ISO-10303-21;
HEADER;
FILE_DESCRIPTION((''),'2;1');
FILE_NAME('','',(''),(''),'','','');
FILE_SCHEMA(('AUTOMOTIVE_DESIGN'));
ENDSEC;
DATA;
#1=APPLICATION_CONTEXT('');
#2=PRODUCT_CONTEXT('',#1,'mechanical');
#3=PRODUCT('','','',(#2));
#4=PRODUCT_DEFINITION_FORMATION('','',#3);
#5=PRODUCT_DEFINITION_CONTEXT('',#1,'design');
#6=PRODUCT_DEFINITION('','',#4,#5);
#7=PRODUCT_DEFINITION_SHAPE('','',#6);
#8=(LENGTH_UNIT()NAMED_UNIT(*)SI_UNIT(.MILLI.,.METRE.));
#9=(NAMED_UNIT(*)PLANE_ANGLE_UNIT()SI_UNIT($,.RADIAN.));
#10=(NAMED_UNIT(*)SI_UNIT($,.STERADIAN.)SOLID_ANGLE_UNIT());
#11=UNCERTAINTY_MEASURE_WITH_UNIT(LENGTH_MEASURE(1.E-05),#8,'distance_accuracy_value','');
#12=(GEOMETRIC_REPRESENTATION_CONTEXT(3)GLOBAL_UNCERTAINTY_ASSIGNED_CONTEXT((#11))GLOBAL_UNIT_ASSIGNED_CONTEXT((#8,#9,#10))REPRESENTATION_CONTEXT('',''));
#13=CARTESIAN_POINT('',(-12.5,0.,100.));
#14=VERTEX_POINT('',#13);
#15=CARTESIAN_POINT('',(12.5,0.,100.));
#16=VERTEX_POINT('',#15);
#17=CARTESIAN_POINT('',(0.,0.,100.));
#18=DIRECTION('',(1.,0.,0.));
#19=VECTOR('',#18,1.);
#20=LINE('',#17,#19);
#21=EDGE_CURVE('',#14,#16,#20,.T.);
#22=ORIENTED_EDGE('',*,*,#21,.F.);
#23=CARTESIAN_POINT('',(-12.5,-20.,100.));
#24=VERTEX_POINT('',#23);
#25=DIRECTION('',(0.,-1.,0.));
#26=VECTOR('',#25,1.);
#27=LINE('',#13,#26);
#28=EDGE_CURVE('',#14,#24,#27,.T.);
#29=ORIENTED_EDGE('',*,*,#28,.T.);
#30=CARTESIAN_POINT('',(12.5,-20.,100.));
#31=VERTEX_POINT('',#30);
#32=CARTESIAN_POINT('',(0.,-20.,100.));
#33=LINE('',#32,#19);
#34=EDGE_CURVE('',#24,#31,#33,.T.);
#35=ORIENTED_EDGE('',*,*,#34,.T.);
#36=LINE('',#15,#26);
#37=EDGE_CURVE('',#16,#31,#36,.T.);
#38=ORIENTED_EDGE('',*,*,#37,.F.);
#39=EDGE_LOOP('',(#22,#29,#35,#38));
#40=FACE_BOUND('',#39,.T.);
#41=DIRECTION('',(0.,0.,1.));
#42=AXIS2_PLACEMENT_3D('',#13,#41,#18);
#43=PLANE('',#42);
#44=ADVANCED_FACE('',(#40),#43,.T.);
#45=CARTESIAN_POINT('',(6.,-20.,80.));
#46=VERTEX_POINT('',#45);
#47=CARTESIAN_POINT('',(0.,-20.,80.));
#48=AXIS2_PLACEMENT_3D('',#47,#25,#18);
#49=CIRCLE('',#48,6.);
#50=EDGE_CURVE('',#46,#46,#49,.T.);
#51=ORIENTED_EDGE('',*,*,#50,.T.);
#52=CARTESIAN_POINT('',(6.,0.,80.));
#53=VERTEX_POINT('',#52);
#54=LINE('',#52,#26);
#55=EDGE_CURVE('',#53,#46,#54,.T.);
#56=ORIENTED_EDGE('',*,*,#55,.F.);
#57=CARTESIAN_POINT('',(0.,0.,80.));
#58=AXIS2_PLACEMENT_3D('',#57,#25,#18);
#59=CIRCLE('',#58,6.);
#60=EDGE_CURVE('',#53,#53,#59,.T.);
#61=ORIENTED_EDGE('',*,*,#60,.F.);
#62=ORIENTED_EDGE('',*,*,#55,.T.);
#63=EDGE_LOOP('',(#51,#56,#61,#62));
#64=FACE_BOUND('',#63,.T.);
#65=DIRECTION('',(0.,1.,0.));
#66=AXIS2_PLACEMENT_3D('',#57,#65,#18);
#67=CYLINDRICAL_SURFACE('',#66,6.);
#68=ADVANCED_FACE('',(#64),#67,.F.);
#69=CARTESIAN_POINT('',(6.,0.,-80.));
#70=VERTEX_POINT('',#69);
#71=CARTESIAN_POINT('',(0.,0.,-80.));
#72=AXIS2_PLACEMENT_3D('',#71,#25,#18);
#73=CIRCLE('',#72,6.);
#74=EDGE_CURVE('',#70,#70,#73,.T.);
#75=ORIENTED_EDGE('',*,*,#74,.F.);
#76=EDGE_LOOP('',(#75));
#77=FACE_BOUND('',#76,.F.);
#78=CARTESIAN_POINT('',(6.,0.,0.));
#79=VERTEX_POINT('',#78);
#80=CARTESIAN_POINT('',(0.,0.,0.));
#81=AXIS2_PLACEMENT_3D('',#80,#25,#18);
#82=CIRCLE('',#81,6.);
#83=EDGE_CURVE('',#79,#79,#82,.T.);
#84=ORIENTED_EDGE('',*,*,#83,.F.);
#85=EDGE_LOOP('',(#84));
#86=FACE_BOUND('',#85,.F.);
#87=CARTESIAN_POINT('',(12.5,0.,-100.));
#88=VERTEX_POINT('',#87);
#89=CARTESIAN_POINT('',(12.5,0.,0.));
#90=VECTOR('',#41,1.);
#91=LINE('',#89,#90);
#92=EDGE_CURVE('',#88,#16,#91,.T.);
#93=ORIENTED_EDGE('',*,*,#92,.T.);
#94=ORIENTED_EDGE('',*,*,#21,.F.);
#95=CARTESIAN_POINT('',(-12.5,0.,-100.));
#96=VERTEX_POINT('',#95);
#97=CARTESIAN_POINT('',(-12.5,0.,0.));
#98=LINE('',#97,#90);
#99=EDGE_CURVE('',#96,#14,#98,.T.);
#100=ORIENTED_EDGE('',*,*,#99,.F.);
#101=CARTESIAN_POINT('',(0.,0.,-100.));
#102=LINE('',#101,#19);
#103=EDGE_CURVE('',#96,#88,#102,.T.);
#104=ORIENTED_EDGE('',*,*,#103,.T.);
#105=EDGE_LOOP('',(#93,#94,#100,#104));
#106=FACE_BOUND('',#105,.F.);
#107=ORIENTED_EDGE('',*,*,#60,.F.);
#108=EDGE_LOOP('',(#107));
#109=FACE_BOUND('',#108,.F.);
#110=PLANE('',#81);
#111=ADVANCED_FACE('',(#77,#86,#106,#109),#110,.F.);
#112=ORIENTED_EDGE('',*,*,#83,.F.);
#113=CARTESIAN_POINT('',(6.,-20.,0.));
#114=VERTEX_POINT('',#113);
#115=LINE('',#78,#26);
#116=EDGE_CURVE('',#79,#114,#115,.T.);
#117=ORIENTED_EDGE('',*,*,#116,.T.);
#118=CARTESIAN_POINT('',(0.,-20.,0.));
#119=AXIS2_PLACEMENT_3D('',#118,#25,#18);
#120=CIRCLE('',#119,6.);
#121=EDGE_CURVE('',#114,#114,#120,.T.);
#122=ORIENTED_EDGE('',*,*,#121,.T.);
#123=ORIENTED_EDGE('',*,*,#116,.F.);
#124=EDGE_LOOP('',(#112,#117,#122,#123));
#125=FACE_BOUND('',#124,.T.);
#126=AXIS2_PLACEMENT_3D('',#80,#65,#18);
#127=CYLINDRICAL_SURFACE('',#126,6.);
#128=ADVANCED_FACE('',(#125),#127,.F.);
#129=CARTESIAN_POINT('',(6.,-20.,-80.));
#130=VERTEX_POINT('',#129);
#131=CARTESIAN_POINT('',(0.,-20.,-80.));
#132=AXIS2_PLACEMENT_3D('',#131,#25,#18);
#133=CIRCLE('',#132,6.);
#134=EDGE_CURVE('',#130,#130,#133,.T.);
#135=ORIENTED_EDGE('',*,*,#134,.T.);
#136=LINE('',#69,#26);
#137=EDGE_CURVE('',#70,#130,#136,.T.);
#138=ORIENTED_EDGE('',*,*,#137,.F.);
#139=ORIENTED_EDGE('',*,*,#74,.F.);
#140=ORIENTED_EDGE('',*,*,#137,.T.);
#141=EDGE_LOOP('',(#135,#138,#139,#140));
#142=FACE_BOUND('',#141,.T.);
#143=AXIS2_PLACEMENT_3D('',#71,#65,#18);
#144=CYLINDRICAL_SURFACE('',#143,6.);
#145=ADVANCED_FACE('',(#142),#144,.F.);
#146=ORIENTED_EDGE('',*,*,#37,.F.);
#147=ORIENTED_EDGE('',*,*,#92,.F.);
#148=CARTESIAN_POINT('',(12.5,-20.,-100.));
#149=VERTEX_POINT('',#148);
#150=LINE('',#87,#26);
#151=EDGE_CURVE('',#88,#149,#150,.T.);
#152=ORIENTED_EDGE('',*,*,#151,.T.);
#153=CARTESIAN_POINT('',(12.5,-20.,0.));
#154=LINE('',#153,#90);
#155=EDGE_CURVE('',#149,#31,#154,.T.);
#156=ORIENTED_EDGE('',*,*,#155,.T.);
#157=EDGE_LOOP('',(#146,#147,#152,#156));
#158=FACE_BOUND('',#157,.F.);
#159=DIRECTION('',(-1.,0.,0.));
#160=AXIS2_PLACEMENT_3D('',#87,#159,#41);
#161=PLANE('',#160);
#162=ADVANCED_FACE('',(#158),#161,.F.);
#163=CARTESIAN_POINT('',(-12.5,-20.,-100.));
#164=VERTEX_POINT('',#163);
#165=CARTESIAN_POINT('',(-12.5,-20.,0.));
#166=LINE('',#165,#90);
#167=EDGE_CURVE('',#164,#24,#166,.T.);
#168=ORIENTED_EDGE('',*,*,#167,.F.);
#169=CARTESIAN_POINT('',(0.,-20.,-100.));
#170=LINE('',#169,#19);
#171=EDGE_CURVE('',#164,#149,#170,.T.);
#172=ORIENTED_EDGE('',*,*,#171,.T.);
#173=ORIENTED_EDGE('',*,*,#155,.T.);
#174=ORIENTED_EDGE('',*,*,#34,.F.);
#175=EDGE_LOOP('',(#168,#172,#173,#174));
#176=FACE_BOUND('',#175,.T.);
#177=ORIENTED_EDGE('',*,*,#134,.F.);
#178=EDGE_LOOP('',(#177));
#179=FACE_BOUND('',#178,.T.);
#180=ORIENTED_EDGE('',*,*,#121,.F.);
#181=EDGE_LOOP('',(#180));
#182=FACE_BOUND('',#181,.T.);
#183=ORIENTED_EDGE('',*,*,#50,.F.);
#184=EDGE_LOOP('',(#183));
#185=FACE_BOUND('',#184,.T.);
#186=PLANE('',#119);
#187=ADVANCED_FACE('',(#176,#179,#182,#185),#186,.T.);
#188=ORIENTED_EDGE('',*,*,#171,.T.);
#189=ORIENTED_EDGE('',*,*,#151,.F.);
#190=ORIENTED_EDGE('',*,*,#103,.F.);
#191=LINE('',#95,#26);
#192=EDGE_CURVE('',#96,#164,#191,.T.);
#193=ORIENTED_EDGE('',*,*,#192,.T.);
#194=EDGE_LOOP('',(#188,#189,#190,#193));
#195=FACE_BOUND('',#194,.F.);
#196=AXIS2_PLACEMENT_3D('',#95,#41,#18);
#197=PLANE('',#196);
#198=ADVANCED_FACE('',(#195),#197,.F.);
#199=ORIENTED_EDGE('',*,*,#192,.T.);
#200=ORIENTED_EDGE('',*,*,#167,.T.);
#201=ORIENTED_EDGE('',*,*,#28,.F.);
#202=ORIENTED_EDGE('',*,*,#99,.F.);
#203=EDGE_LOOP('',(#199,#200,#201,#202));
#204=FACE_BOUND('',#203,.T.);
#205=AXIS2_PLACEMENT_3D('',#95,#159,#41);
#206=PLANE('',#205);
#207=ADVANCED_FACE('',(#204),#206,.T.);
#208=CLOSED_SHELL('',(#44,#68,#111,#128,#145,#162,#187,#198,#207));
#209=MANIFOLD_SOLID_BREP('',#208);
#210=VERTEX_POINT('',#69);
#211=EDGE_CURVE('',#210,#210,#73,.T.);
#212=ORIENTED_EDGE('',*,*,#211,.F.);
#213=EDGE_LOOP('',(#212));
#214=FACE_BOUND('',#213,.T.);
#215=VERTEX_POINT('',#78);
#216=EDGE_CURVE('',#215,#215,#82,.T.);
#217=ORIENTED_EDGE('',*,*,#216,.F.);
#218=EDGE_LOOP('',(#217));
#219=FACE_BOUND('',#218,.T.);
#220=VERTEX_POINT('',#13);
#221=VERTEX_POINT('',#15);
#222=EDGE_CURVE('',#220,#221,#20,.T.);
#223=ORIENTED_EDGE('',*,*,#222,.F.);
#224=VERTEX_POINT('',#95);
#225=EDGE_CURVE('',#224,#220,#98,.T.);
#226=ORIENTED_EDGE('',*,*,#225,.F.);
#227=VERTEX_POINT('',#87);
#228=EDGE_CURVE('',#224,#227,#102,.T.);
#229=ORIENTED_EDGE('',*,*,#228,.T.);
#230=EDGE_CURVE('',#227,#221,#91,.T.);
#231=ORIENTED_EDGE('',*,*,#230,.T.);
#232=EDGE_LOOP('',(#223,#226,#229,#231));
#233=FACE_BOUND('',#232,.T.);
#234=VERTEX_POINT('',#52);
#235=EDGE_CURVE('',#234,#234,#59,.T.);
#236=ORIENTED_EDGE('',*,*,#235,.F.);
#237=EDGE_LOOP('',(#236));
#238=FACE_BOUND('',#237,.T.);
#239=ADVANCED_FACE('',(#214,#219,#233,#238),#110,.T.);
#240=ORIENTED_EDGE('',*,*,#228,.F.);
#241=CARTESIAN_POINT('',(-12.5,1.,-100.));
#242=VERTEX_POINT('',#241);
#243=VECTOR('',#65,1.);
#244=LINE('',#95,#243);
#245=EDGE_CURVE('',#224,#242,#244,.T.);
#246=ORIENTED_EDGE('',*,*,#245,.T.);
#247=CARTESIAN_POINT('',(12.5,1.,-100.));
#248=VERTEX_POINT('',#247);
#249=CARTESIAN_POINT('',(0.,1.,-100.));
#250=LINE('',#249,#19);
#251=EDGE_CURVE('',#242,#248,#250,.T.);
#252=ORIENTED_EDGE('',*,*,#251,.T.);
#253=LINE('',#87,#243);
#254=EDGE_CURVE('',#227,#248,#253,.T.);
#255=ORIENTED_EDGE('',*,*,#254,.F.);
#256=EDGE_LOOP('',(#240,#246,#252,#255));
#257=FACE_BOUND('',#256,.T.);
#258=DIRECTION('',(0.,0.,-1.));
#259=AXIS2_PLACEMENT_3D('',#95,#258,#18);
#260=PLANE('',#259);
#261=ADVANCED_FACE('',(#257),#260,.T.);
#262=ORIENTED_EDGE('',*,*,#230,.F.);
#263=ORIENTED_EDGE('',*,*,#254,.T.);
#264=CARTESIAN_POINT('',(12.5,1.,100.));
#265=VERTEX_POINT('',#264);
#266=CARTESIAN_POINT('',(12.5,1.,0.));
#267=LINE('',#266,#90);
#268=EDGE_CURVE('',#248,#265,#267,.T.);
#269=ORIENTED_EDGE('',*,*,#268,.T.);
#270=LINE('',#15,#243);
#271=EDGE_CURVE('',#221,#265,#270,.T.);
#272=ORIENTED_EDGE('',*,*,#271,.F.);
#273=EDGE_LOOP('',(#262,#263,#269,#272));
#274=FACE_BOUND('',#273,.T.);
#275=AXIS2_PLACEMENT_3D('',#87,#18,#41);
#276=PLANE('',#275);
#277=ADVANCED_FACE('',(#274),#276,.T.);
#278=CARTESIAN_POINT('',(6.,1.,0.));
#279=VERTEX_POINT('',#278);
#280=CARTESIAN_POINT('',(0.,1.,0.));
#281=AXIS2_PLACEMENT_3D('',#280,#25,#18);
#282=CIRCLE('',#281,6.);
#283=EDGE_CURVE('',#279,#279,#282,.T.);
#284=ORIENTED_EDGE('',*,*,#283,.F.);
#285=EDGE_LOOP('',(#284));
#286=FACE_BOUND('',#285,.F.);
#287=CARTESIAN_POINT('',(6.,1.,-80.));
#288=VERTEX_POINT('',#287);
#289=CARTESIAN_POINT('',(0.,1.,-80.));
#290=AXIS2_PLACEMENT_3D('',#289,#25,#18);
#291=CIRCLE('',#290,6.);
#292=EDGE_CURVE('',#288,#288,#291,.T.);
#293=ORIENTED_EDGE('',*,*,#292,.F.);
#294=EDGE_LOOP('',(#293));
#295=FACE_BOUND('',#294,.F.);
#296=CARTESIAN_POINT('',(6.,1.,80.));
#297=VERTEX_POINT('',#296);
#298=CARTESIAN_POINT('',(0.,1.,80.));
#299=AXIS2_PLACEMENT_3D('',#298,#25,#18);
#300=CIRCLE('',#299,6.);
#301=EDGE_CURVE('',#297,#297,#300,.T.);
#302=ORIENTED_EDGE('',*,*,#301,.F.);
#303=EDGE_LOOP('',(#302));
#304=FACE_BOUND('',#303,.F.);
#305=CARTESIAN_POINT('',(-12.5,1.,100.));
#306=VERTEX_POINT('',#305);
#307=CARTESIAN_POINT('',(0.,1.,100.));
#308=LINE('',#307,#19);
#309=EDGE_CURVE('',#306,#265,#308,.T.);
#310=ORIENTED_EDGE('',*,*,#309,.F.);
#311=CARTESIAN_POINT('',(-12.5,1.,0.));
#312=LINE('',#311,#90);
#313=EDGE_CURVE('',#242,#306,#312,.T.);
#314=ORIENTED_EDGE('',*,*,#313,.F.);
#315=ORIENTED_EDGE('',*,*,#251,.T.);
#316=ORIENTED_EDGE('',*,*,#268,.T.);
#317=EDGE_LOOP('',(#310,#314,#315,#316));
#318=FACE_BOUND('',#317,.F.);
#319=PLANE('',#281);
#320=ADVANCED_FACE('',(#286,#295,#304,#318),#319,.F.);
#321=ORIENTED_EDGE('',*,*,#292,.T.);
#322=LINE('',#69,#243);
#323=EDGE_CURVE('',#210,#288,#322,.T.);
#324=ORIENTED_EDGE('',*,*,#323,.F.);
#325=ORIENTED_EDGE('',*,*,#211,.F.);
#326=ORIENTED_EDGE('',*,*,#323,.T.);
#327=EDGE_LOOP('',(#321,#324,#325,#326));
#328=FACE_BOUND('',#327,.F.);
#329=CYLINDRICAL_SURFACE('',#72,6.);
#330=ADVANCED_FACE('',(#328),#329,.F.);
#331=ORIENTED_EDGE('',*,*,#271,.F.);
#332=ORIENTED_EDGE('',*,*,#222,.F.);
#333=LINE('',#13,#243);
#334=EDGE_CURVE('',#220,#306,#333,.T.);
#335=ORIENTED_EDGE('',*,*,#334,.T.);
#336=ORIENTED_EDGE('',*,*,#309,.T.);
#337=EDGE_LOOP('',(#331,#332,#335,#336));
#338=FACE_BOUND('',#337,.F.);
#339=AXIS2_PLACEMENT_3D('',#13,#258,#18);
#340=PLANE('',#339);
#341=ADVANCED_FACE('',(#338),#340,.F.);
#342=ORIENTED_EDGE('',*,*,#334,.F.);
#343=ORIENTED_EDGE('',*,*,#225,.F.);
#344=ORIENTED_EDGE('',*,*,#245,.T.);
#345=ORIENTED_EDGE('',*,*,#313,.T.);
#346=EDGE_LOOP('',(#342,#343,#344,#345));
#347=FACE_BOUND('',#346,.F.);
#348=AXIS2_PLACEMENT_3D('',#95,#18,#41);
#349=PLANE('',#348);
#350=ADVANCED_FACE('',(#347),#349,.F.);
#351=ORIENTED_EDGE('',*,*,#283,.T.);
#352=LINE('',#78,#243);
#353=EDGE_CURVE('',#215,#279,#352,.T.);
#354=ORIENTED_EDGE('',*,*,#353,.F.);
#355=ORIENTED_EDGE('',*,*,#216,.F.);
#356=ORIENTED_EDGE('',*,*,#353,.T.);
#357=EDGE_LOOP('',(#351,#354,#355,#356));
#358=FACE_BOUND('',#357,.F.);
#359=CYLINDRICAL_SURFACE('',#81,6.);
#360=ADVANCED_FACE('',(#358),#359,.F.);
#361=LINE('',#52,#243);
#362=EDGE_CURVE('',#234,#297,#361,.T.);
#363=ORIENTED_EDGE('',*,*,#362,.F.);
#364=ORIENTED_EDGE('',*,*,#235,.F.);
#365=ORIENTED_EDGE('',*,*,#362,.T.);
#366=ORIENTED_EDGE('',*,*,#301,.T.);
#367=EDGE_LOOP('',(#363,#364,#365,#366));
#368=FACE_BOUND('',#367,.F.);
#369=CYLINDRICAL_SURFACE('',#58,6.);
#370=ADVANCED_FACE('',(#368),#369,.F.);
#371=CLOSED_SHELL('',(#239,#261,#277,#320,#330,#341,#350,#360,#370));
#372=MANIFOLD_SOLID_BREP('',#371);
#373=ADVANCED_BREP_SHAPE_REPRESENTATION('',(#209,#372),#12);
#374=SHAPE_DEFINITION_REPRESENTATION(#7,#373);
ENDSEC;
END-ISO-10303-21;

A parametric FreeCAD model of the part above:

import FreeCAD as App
import Part
import Sketcher
Q = App.Units.Quantity


def add_polygon(sketch, points):
    """Adds a closed chain of lines whose ends are joined by coincident constraints."""
    first, n = sketch.GeometryCount, len(points)
    for a, b in zip(points, points[1:] + points[:1]):
        sketch.addGeometry(Part.LineSegment(App.Vector(*a, 0), App.Vector(*b, 0)), False)
    for i in range(n):
        sketch.addConstraint(Sketcher.Constraint("Coincident", first + i, 2, first + (i + 1) % n, 1))

doc = App.newDocument("Part")
params = doc.addObject("Spreadsheet::Sheet", "Params")
for row, (alias, value) in enumerate([
    ("sketch1_diameter", "12 mm"),
    ("sketch1_width", "25 mm"),
    ("sketch1_height", "200 mm"),
    ("pad1_length", "20 mm"),
    ("sketch2_diameter", "12 mm"),
    ("sketch2_width", "25 mm"),
    ("sketch2_height", "200 mm"),
    ("pad2_length", "1 mm"),
], start=1):
    params.set(f"A{row}", alias)
    params.set(f"B{row}", "=" + value)
    params.setAlias(f"B{row}", alias)

body = doc.addObject("PartDesign::Body", "Body")

# Sketch on XZ plane
sketch1 = body.newObject("Sketcher::SketchObject", "Sketch")
sketch1.AttachmentSupport = (doc.getObject("XZ_Plane"), [""])
sketch1.MapMode = "FlatFace"
add_polygon(sketch1, [(-12, 100), (-12, -100), (12, -100), (12, 100)])  # lines 0-3
sketch1.addGeometry(Part.Circle(App.Vector(0, -80, 0), App.Vector(0, 0, 1), 6), False)  # 4
sketch1.addGeometry(Part.Circle(App.Vector(0, 0, 0), App.Vector(0, 0, 1), 6), False)  # 5
sketch1.addGeometry(Part.Circle(App.Vector(0, 80, 0), App.Vector(0, 0, 1), 6), False)  # 6
sketch1.addConstraint([
    Sketcher.Constraint("Vertical", 0),
    Sketcher.Constraint("Horizontal", 1),
    Sketcher.Constraint("Vertical", 2),
    Sketcher.Constraint("Horizontal", 3),
    Sketcher.Constraint("Coincident", 5, 3, -1, 1),
    Sketcher.Constraint("Equal", 4, 5),
    Sketcher.Constraint("Equal", 5, 6),
    Sketcher.Constraint("Symmetric", 4, 3, 6, 3, -1, 1),
    Sketcher.Constraint("Symmetric", 0, 2, 2, 2, -1, 1),
    Sketcher.Constraint("PointOnObject", 4, 3, -2),
    Sketcher.Constraint("Diameter", 4, Q("12 mm")),
    Sketcher.Constraint("DistanceX", 1, 1, 1, 2, Q("25 mm")),
    Sketcher.Constraint("DistanceY", 0, 2, 0, 1, Q("200 mm")),
    Sketcher.Constraint("DistanceY", 4, 3, -1, 1, Q("80 mm")),
])
sketch1.setExpression("Constraints[14]", "Params.sketch1_diameter")
sketch1.setExpression("Constraints[15]", "Params.sketch1_width")
sketch1.setExpression("Constraints[16]", "Params.sketch1_height")
pad1 = body.newObject("PartDesign::Pad", "Pad")
pad1.Profile = sketch1
pad1.setExpression("Length", "Params.pad1_length")
body2 = doc.addObject("PartDesign::Body", "Body001")

# Sketch on XZ plane
sketch2 = body2.newObject("Sketcher::SketchObject", "Sketch001")
sketch2.AttachmentSupport = (doc.getObject("XZ_Plane001"), [""])
sketch2.MapMode = "FlatFace"
add_polygon(sketch2, [(-12, 100), (-12, -100), (12, -100), (12, 100)])  # lines 0-3
sketch2.addGeometry(Part.Circle(App.Vector(0, -80, 0), App.Vector(0, 0, 1), 6), False)  # 4
sketch2.addGeometry(Part.Circle(App.Vector(0, 0, 0), App.Vector(0, 0, 1), 6), False)  # 5
sketch2.addGeometry(Part.Circle(App.Vector(0, 80, 0), App.Vector(0, 0, 1), 6), False)  # 6
sketch2.addConstraint([
    Sketcher.Constraint("Vertical", 0),
    Sketcher.Constraint("Horizontal", 1),
    Sketcher.Constraint("Vertical", 2),
    Sketcher.Constraint("Horizontal", 3),
    Sketcher.Constraint("Coincident", 5, 3, -1, 1),
    Sketcher.Constraint("Equal", 4, 5),
    Sketcher.Constraint("Equal", 5, 6),
    Sketcher.Constraint("Symmetric", 4, 3, 6, 3, -1, 1),
    Sketcher.Constraint("Symmetric", 0, 2, 2, 2, -1, 1),
    Sketcher.Constraint("PointOnObject", 4, 3, -2),
    Sketcher.Constraint("Diameter", 4, Q("12 mm")),
    Sketcher.Constraint("DistanceX", 1, 1, 1, 2, Q("25 mm")),
    Sketcher.Constraint("DistanceY", 0, 2, 0, 1, Q("200 mm")),
    Sketcher.Constraint("DistanceY", 4, 3, -1, 1, Q("80 mm")),
])
sketch2.setExpression("Constraints[14]", "Params.sketch2_diameter")
sketch2.setExpression("Constraints[15]", "Params.sketch2_width")
sketch2.setExpression("Constraints[16]", "Params.sketch2_height")
pad2 = body2.newObject("PartDesign::Pad", "Pad001")
pad2.Profile = sketch2
pad2.setExpression("Length", "Params.pad2_length")
pad2.Reversed = True

doc.recompute()
